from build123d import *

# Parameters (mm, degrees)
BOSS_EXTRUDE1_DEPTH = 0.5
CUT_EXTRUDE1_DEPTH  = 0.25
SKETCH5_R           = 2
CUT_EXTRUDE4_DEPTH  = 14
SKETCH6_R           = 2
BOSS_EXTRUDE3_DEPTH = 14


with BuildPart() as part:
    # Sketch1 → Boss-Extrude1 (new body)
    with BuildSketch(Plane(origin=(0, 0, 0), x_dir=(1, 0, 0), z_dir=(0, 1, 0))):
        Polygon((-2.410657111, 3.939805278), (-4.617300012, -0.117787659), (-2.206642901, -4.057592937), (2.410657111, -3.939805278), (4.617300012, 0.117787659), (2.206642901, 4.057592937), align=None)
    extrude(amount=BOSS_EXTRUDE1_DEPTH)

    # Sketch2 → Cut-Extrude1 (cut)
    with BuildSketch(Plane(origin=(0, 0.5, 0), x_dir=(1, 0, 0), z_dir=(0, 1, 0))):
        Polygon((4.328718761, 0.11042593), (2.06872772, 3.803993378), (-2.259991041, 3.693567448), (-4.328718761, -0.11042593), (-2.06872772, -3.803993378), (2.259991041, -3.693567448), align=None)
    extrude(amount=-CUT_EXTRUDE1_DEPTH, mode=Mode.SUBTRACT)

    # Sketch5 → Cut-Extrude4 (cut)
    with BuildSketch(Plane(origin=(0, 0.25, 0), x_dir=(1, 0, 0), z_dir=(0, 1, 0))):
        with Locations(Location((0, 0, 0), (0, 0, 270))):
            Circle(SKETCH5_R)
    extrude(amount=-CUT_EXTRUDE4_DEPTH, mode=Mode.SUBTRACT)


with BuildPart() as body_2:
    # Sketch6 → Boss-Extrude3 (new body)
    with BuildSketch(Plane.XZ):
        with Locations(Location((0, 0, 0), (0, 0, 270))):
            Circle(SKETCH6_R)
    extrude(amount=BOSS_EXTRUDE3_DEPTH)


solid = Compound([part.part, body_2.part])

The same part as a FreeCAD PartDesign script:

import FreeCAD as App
import Part
import Sketcher

V = App.Vector

doc = App.newDocument("Part")
params = doc.addObject("Spreadsheet::Sheet", "Params")
for row, (alias, value) in enumerate([
    ("pad1_length", "0.5 mm"),
    ("pocket1_length", "0.25 mm"),
    ("sketch3_diameter", "4 mm"),
    ("pocket2_length", "14 mm"),
    ("sketch4_diameter", "4 mm"),
    ("pad2_length", "14 mm"),
], start=1):
    params.set(f"A{row}", alias)
    params.set(f"B{row}", "=" + value)
    params.setAlias(f"B{row}", alias)

body = doc.addObject("PartDesign::Body", "Body")

sketch1 = doc.addObject("Sketcher::SketchObject", "Sketch")
body.addObject(sketch1)
sketch1.AttachmentSupport = (doc.XZ_Plane, [""])
sketch1.MapMode = "FlatFace"
sketch1.addGeometry([
    Part.LineSegment(V(-2.410657, -3.939805, 0), V(-4.6173, 0.117788, 0)),
    Part.LineSegment(V(-4.6173, 0.117788, 0), V(-2.206643, 4.057593, 0)),
    Part.LineSegment(V(-2.206643, 4.057593, 0), V(2.410657, 3.939805, 0)),
    Part.LineSegment(V(2.410657, 3.939805, 0), V(4.6173, -0.117788, 0)),
    Part.LineSegment(V(4.6173, -0.117788, 0), V(2.206643, -4.057593, 0)),
    Part.LineSegment(V(2.206643, -4.057593, 0), V(-2.410657, -3.939805, 0)),
], False)
sketch1.addConstraint([
    Sketcher.Constraint("Coincident", 0, 2, 1, 1),
    Sketcher.Constraint("Coincident", 1, 2, 2, 1),
    Sketcher.Constraint("Coincident", 2, 2, 3, 1),
    Sketcher.Constraint("Coincident", 3, 2, 4, 1),
    Sketcher.Constraint("Coincident", 4, 2, 5, 1),
    Sketcher.Constraint("Coincident", 5, 2, 0, 1),
    Sketcher.Constraint("Symmetric", 0, 2, 3, 2, -1, 1),
    Sketcher.Constraint("Symmetric", 1, 2, 4, 2, -1, 1),
    Sketcher.Constraint("Symmetric", 2, 2, 5, 2, -1, 1),
    Sketcher.Constraint("Equal", 0, 1),
    Sketcher.Constraint("Equal", 1, 2),
    Sketcher.Constraint("DistanceX", 0, 2, -1, 1, 4.6173),
    Sketcher.Constraint("DistanceX", 1, 2, 2, 2, 4.6173),
    Sketcher.Constraint("DistanceY", 4, 2, 2, 2, 7.997398),
    Sketcher.Constraint("DistanceY", 3, 2, 1, 2, 4.175381),
])
pad1 = doc.addObject("PartDesign::Pad", "Pad")
body.addObject(pad1)
pad1.Profile = sketch1
pad1.setExpression("Length", "Params.pad1_length")
pad1.Reversed = True

sketch2 = doc.addObject("Sketcher::SketchObject", "Sketch001")
body.addObject(sketch2)
sketch2.AttachmentSupport = (doc.XZ_Plane, [""])
sketch2.MapMode = "FlatFace"
sketch2.AttachmentOffset = App.Placement(V(0, 0, -0.5), App.Rotation())
sketch2.addGeometry([
    Part.LineSegment(V(4.328719, -0.110426, 0), V(2.068728, -3.803993, 0)),
    Part.LineSegment(V(2.068728, -3.803993, 0), V(-2.259991, -3.693567, 0)),
    Part.LineSegment(V(-2.259991, -3.693567, 0), V(-4.328719, 0.110426, 0)),
    Part.LineSegment(V(-4.328719, 0.110426, 0), V(-2.068728, 3.803993, 0)),
    Part.LineSegment(V(-2.068728, 3.803993, 0), V(2.259991, 3.693567, 0)),
    Part.LineSegment(V(2.259991, 3.693567, 0), V(4.328719, -0.110426, 0)),
], False)
sketch2.addConstraint([
    Sketcher.Constraint("Coincident", 0, 2, 1, 1),
    Sketcher.Constraint("Coincident", 1, 2, 2, 1),
    Sketcher.Constraint("Coincident", 2, 2, 3, 1),
    Sketcher.Constraint("Coincident", 3, 2, 4, 1),
    Sketcher.Constraint("Coincident", 4, 2, 5, 1),
    Sketcher.Constraint("Coincident", 5, 2, 0, 1),
    Sketcher.Constraint("Symmetric", 0, 2, 3, 2, -1, 1),
    Sketcher.Constraint("Symmetric", 1, 2, 4, 2, -1, 1),
    Sketcher.Constraint("Symmetric", 2, 2, 5, 2, -1, 1),
    Sketcher.Constraint("Equal", 0, 1),
    Sketcher.Constraint("Equal", 1, 2),
    Sketcher.Constraint("DistanceX", 1, 2, -1, 1, 2.259991),
    Sketcher.Constraint("DistanceX", 2, 2, -1, 1, 4.328719),
    Sketcher.Constraint("DistanceX", 1, 2, 0, 2, 4.328719),
    Sketcher.Constraint("DistanceY", 0, 2, 2, 2, 3.914419),
])
pocket1 = doc.addObject("PartDesign::Pocket", "Pocket")
body.addObject(pocket1)
pocket1.Profile = sketch2
pocket1.setExpression("Length", "Params.pocket1_length")
pocket1.Reversed = True

sketch3 = doc.addObject("Sketcher::SketchObject", "Sketch002")
body.addObject(sketch3)
sketch3.AttachmentSupport = (doc.XZ_Plane, [""])
sketch3.MapMode = "FlatFace"
sketch3.AttachmentOffset = App.Placement(V(0, 0, -0.25), App.Rotation())
sketch3.addGeometry(Part.Circle(V(0, 0, 0), V(0, 0, 1), 2), False)
sketch3.addConstraint([
    Sketcher.Constraint("Coincident", 0, 3, -1, 1),
    Sketcher.Constraint("Diameter", 0, 4.0),
])
sketch3.setExpression("Constraints[1]", "Params.sketch3_diameter")
pocket2 = doc.addObject("PartDesign::Pocket", "Pocket001")
body.addObject(pocket2)
pocket2.Profile = sketch3
pocket2.setExpression("Length", "Params.pocket2_length")
pocket2.Reversed = True
body2 = doc.addObject("PartDesign::Body", "Body001")

sketch4 = doc.addObject("Sketcher::SketchObject", "Sketch003")
body2.addObject(sketch4)
sketch4.AttachmentSupport = (doc.getObject("XZ_Plane001"), [""])
sketch4.MapMode = "FlatFace"
sketch4.addGeometry(Part.Circle(V(0, 0, 0), V(0, 0, 1), 2), False)
sketch4.addConstraint([
    Sketcher.Constraint("Coincident", 0, 3, -1, 1),
    Sketcher.Constraint("Diameter", 0, 4.0),
])
sketch4.setExpression("Constraints[1]", "Params.sketch4_diameter")
pad2 = doc.addObject("PartDesign::Pad", "Pad001")
body2.addObject(pad2)
pad2.Profile = sketch4
pad2.setExpression("Length", "Params.pad2_length")

doc.recompute()
